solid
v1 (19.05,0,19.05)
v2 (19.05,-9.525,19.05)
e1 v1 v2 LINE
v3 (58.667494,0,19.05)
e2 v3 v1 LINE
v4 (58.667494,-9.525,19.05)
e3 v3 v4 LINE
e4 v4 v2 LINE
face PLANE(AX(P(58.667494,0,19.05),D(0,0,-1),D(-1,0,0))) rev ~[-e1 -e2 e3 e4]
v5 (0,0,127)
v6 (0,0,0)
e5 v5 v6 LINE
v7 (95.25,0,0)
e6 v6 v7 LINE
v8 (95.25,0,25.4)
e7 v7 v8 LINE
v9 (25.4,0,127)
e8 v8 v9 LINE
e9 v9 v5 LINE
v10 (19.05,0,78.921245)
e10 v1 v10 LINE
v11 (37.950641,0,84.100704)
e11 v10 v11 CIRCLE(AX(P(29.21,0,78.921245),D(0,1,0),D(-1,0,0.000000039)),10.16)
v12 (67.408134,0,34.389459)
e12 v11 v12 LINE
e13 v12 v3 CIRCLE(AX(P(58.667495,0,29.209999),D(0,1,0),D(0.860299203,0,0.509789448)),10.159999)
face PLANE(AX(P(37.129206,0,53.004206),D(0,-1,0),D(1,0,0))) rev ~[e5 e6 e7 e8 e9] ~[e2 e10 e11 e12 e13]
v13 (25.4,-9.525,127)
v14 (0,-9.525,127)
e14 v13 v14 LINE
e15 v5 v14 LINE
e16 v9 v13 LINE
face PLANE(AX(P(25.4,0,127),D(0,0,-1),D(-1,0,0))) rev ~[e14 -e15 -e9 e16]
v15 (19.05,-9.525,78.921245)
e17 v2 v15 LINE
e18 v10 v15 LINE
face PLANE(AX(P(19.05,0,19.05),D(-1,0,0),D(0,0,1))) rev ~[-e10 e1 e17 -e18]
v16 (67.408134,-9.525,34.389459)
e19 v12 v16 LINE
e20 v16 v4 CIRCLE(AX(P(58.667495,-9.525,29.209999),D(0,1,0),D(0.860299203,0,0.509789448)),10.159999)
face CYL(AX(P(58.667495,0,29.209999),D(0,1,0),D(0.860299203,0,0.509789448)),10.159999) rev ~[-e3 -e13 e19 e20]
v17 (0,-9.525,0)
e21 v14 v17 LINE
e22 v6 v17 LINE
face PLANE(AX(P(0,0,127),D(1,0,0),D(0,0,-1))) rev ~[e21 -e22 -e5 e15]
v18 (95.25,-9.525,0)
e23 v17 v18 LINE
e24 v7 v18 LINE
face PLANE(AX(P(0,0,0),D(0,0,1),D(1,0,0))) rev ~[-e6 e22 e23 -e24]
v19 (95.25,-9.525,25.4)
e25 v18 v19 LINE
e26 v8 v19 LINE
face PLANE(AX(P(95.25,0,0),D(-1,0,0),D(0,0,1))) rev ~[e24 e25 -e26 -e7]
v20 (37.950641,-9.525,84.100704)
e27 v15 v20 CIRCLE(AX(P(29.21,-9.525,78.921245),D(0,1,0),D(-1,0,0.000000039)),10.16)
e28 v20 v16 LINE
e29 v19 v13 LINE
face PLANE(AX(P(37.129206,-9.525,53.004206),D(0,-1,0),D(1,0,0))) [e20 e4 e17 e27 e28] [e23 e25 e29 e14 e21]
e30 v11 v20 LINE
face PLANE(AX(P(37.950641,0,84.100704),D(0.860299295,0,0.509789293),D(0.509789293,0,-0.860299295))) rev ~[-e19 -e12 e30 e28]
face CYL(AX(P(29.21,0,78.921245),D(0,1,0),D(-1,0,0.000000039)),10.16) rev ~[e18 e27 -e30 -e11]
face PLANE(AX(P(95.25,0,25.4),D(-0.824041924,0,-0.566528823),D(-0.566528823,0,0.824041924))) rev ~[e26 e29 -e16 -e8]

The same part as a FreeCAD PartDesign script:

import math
import FreeCAD as App
import Part
import Sketcher

V = App.Vector
Q = App.Units.Quantity


def add_polygon(sketch, points):
    """Adds a closed chain of lines whose ends are joined by coincident constraints."""
    first, n = sketch.GeometryCount, len(points)
    for a, b in zip(points, points[1:] + points[:1]):
        sketch.addGeometry(Part.LineSegment(App.Vector(*a, 0), App.Vector(*b, 0)), False)
    for i in range(n):
        sketch.addConstraint(Sketcher.Constraint("Coincident", first + i, 2, first + (i + 1) % n, 1))

doc = App.newDocument("Part")
params = doc.addObject("Spreadsheet::Sheet", "Params")
for row, (alias, value) in enumerate([
    ("sketch1_radius", "0.4 in"),
    ("sketch1_width", "1 in"),
    ("sketch1_height", "5 in"),
    ("sketch1_width2", "3.75 in"),
    ("pad1_length", "0.375 in"),
], start=1):
    params.set(f"A{row}", alias)
    params.set(f"B{row}", "=" + value)
    params.setAlias(f"B{row}", alias)

body = doc.addObject("PartDesign::Body", "Body")

sketch1 = body.newObject("Sketcher::SketchObject", "Sketch")
sketch1.AttachmentSupport = (doc.getObject("XZ_Plane"), [""])
sketch1.MapMode = "FlatFace"
add_polygon(sketch1, [(0, 0), (95.25, 0), (95.25, 25.4), (25.4, 127), (0, 127)])
sketch1.addGeometry(Part.LineSegment(V(58.667494, 19.05, 0), V(19.05, 19.05, 0)), False)
sketch1.addGeometry(Part.LineSegment(V(19.05, 19.05, 0), V(19.05, 78.921245, 0)), False)
sketch1.addGeometry(Part.ArcOfCircle(Part.Circle(V(29.21, 78.921245, 0), V(0, 0, 1), 10.16), math.radians(30.649796), math.radians(179.999998)), False)
sketch1.addGeometry(Part.LineSegment(V(37.950641, 84.100704, 0), V(67.408134, 34.389459, 0)), False)
sketch1.addGeometry(Part.ArcOfCircle(Part.Circle(V(58.667495, 29.209999, 0), V(0, 0, 1), 10.159999), math.radians(-90.000006), math.radians(30.649806)), False)
sketch1.addConstraint([
    Sketcher.Constraint("Coincident", 5, 2, 6, 1),
    Sketcher.Constraint("Tangent", 6, 2, 7, 2),
    Sketcher.Constraint("Tangent", 7, 1, 8, 1),
    Sketcher.Constraint("Tangent", 8, 2, 9, 2),
    Sketcher.Constraint("Tangent", 9, 1, 5, 1),
    Sketcher.Constraint("Horizontal", 0),
    Sketcher.Constraint("Vertical", 1),
    Sketcher.Constraint("Horizontal", 3),
    Sketcher.Constraint("Vertical", 4),
    Sketcher.Constraint("Horizontal", 5),
    Sketcher.Constraint("Vertical", 6),
    Sketcher.Constraint("Coincident", 4, 2, -1, 1),
    Sketcher.Constraint("Equal", 7, 9),
    Sketcher.Constraint("Equal", 3, 1),
    Sketcher.Constraint("Radius", 7, Q("0.4 in")),
    Sketcher.Constraint("DistanceX", 3, 2, 3, 1, Q("1 in")),
    Sketcher.Constraint("DistanceY", 4, 2, 4, 1, Q("5 in")),
    Sketcher.Constraint("DistanceX", 5, 2, 1, 2, Q("3 in")),
    Sketcher.Constraint("DistanceX", 0, 1, 0, 2, Q("3.75 in")),
    Sketcher.Constraint("DistanceY", -1, 1, 9, 3, Q("1.15 in")),
    Sketcher.Constraint("DistanceX", 5, 2, 5, 1, Q("39.617494 mm")),
    Sketcher.Constraint("DistanceY", 6, 1, 6, 2, Q("59.871245 mm")),
])
sketch1.setExpression("Constraints[19]", "Params.sketch1_radius")
sketch1.setExpression("Constraints[20]", "Params.sketch1_width")
sketch1.setExpression("Constraints[21]", "Params.sketch1_height")
sketch1.setExpression("Constraints[23]", "Params.sketch1_width2")
pad1 = body.newObject("PartDesign::Pad", "Pad")
pad1.Profile = sketch1
pad1.setExpression("Length", "Params.pad1_length")

doc.recompute()
